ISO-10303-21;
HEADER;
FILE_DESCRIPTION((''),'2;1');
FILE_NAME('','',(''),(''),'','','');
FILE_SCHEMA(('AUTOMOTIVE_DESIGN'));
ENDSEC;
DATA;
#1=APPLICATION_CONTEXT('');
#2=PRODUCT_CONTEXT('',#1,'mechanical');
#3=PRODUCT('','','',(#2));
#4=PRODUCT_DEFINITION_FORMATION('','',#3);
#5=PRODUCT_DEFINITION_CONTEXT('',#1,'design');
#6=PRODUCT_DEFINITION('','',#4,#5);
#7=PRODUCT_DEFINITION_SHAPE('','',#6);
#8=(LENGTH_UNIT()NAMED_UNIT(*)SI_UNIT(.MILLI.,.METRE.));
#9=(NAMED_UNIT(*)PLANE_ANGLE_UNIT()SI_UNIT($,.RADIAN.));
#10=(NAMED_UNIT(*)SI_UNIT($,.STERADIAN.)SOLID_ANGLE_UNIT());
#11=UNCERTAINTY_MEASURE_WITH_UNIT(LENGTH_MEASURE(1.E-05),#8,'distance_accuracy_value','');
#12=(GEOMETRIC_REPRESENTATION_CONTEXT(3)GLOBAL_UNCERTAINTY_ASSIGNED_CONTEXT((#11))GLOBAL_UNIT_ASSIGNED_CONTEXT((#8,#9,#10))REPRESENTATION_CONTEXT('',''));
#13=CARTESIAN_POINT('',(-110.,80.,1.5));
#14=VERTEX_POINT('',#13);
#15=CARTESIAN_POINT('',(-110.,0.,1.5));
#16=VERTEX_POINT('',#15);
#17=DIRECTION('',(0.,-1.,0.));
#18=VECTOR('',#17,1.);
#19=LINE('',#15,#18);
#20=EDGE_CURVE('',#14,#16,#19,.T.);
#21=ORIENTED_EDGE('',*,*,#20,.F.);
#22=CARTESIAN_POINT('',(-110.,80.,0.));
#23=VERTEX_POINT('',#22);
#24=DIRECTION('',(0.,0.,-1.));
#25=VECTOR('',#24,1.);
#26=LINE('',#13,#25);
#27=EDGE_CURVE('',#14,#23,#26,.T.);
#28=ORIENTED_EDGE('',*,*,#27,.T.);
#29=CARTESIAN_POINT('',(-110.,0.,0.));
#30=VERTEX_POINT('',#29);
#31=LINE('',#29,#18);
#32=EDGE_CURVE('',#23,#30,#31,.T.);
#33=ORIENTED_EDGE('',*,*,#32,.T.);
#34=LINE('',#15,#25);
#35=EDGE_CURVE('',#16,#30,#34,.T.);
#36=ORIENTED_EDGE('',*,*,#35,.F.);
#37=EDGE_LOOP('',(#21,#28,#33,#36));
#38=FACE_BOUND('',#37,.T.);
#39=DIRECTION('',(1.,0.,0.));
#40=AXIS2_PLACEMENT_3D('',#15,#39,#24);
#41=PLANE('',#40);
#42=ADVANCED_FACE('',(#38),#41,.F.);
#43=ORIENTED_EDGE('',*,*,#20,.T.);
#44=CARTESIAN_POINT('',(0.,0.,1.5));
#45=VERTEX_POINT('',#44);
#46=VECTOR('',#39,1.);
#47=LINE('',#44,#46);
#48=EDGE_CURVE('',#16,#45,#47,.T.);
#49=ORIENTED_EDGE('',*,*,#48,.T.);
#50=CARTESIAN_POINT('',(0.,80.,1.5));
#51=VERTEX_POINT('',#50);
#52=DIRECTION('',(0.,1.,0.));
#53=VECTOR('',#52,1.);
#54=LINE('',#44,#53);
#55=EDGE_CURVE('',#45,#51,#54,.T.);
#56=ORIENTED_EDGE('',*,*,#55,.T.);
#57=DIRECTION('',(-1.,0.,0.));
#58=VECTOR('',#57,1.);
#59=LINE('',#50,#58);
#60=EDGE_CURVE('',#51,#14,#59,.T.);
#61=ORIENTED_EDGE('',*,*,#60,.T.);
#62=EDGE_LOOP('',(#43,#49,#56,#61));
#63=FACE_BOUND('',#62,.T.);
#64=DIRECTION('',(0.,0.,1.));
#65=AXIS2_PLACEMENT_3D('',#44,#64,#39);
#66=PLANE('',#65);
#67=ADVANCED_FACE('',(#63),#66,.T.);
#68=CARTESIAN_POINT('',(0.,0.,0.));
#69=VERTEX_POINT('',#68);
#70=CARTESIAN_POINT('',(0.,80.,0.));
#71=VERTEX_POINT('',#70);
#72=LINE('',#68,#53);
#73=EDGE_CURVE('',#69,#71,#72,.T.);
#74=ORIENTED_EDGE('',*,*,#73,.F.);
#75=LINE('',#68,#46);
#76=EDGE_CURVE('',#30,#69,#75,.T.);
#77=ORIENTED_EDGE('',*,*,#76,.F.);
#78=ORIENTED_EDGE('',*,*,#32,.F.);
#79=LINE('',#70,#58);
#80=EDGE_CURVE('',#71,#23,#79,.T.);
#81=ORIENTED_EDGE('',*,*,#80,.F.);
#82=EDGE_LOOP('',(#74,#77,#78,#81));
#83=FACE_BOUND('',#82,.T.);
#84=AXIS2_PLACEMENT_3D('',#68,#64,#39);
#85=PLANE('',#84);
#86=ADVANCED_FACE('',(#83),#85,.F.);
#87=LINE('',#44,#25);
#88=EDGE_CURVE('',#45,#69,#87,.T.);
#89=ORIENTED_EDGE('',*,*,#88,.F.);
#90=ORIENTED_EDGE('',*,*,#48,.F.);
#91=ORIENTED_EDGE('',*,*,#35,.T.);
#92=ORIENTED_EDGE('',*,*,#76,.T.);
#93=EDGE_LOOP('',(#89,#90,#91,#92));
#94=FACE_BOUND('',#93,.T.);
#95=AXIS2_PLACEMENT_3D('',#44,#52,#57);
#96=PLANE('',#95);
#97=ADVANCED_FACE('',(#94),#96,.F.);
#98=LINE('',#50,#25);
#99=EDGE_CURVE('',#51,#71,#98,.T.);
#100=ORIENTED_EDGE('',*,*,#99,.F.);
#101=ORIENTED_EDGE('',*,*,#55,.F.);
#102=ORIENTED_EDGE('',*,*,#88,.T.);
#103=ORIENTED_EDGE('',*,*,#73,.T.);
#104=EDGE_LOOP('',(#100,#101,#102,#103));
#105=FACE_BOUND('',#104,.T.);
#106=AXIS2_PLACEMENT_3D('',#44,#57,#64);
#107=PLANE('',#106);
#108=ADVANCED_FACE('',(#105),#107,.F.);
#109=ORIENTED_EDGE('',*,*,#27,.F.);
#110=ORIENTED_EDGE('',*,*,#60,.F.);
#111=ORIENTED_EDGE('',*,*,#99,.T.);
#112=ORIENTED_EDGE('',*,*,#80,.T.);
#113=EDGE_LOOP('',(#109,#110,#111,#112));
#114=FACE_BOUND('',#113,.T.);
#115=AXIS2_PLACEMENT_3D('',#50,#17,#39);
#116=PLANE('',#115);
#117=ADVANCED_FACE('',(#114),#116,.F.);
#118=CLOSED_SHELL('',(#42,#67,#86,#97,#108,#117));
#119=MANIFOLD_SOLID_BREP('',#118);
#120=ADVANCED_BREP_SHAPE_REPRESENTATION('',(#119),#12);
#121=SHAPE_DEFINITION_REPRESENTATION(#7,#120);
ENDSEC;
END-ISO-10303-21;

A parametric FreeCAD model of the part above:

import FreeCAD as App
import Part
import Sketcher

doc = App.newDocument("Part")
body = doc.addObject("PartDesign::Body", "Body")

# Sketch on XY plane
sketch1 = body.newObject("Sketcher::SketchObject", "Sketch")
sketch1.AttachmentSupport = (doc.getObject("XY_Plane"), [""])
sketch1.MapMode = "FlatFace"
sketch1.addGeometry([
    Part.LineSegment(App.Vector(-110, 80, 0), App.Vector(-110, 0, 0)),
    Part.LineSegment(App.Vector(-110, 0, 0), App.Vector(0, 0, 0)),
    Part.LineSegment(App.Vector(0, 0, 0), App.Vector(0, 80, 0)),
    Part.LineSegment(App.Vector(0, 80, 0), App.Vector(-110, 80, 0)),
], False)
sketch1.addConstraint([
    Sketcher.Constraint("Coincident", 0, 2, 1, 1),
    Sketcher.Constraint("Coincident", 1, 2, 2, 1),
    Sketcher.Constraint("Coincident", 2, 2, 3, 1),
    Sketcher.Constraint("Coincident", 3, 2, 0, 1),
    Sketcher.Constraint("Vertical", 0),
    Sketcher.Constraint("Horizontal", 1),
    Sketcher.Constraint("Vertical", 2),
    Sketcher.Constraint("Horizontal", 3),
    Sketcher.Constraint("Coincident", 1, 2, -1, 1),
    Sketcher.Constraint("DistanceX", 1, 1, 1, 2, 110.0),
    Sketcher.Constraint("DistanceY", 0, 2, 0, 1, 80.0),
])
pad1 = body.newObject("PartDesign::Pad", "Pad")
pad1.Profile = sketch1
pad1.Length = 1.5

doc.recompute()
